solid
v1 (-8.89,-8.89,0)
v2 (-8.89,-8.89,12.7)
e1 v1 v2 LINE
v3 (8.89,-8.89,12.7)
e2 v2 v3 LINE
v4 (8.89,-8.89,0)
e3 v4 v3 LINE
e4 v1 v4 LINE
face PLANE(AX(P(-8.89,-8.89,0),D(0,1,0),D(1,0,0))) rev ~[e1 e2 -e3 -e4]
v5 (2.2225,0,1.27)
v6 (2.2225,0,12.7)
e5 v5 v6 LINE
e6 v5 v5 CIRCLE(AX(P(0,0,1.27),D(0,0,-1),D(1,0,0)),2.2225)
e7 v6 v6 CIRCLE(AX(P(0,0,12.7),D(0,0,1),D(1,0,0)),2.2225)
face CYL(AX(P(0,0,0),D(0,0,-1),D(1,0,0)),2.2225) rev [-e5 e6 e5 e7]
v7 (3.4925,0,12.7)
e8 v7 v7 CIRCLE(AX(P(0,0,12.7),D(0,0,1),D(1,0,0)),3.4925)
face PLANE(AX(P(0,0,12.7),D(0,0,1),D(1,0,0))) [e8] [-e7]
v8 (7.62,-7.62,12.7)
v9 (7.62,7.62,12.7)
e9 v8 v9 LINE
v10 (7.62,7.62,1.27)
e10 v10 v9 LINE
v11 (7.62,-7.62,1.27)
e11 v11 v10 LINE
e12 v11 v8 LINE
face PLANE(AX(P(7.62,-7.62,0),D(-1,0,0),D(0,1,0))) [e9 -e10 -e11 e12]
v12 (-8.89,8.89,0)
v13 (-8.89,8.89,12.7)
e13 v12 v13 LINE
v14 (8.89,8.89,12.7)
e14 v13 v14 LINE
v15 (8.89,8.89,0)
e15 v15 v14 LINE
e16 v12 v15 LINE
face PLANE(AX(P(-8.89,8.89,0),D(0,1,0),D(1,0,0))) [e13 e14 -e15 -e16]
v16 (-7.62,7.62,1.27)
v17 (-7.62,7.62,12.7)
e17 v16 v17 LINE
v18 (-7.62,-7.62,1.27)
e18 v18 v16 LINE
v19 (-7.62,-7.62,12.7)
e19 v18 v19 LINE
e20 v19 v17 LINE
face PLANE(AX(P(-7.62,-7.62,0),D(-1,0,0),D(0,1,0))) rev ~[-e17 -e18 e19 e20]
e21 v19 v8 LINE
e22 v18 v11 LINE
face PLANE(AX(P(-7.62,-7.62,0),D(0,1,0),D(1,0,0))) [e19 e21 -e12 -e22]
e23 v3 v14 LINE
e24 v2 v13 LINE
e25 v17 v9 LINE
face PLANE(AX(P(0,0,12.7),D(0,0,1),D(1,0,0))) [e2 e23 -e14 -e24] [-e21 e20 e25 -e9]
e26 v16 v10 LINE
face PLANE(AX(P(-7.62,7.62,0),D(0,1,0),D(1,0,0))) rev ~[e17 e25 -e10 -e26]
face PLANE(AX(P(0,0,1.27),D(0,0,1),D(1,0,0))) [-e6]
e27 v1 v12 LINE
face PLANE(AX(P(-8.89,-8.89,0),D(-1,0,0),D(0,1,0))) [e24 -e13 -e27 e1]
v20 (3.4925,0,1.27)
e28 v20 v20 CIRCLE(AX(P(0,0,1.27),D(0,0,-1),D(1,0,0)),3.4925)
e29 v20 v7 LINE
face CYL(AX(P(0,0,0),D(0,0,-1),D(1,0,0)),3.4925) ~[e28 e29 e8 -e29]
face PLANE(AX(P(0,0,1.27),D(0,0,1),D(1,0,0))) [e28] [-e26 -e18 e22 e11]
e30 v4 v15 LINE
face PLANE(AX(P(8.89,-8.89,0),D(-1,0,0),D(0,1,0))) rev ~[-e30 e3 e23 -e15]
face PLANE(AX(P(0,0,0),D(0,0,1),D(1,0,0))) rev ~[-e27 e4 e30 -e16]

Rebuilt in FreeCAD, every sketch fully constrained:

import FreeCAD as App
import Part
import Sketcher
from FreeCAD import Vector
Q = App.Units.Quantity


def add_polygon(sketch, points):
    """Adds a closed chain of lines whose ends are joined by coincident constraints."""
    first, n = sketch.GeometryCount, len(points)
    for a, b in zip(points, points[1:] + points[:1]):
        sketch.addGeometry(Part.LineSegment(App.Vector(*a, 0), App.Vector(*b, 0)), False)
    for i in range(n):
        sketch.addConstraint(Sketcher.Constraint("Coincident", first + i, 2, first + (i + 1) % n, 1))

doc = App.newDocument("Part")
body = doc.addObject("PartDesign::Body", "Body")

sketch1 = body.newObject("Sketcher::SketchObject", "Sketch")
sketch1.AttachmentSupport = (doc.getObject("XY_Plane"), [""])
sketch1.MapMode = "FlatFace"
add_polygon(sketch1, [(-7.62, 7.62), (-7.62, -7.62), (7.62, -7.62), (7.62, 7.62)])
sketch1.addConstraint(Sketcher.Constraint("Vertical", 0))
sketch1.addConstraint(Sketcher.Constraint("Horizontal", 1))
sketch1.addConstraint(Sketcher.Constraint("Vertical", 2))
sketch1.addConstraint(Sketcher.Constraint("Horizontal", 3))
sketch1.addConstraint(Sketcher.Constraint("Symmetric", 0, 2, 2, 2, -1, 1))
sketch1.addConstraint(Sketcher.Constraint("Equal", 3, 0))
sketch1.addConstraint(Sketcher.Constraint("DistanceX", 1, 1, 1, 2, Q("0.6 in")))
pad1 = body.newObject("PartDesign::Pad", "Pad")
pad1.Profile = sketch1
pad1.Length = Q("0.05 in")

sketch2 = body.newObject("Sketcher::SketchObject", "Sketch001")
sketch2.AttachmentSupport = (doc.getObject("XY_Plane"), [""])
sketch2.MapMode = "FlatFace"
add_polygon(sketch2, [(-8.89, 8.89), (-8.89, -8.89), (8.89, -8.89), (8.89, 8.89)])
add_polygon(sketch2, [(7.62, -7.62), (-7.62, -7.62), (-7.62, 7.62), (7.62, 7.62)])
sketch2.addConstraint(Sketcher.Constraint("Vertical", 0))
sketch2.addConstraint(Sketcher.Constraint("Horizontal", 1))
sketch2.addConstraint(Sketcher.Constraint("Vertical", 2))
sketch2.addConstraint(Sketcher.Constraint("Horizontal", 3))
sketch2.addConstraint(Sketcher.Constraint("Horizontal", 4))
sketch2.addConstraint(Sketcher.Constraint("Vertical", 5))
sketch2.addConstraint(Sketcher.Constraint("Horizontal", 6))
sketch2.addConstraint(Sketcher.Constraint("Vertical", 7))
sketch2.addConstraint(Sketcher.Constraint("Symmetric", 0, 2, 2, 2, -1, 1))
sketch2.addConstraint(Sketcher.Constraint("Symmetric", 4, 2, 6, 2, -1, 1))
sketch2.addConstraint(Sketcher.Constraint("Equal", 3, 0))
sketch2.addConstraint(Sketcher.Constraint("Equal", 6, 5))
sketch2.addConstraint(Sketcher.Constraint("DistanceX", 1, 1, 1, 2, Q("0.7 in")))
sketch2.addConstraint(Sketcher.Constraint("DistanceX", 4, 2, 4, 1, Q("0.6 in")))
pad2 = body.newObject("PartDesign::Pad", "Pad001")
pad2.Profile = sketch2
pad2.Length = Q("0.5 in")

sketch3 = body.newObject("Sketcher::SketchObject", "Sketch002")
sketch3.AttachmentSupport = (doc.getObject("XY_Plane"), [""])
sketch3.MapMode = "FlatFace"
sketch3.addGeometry(Part.Circle(Vector(0, 0, 0), Vector(0, 0, 1), 3.4925), False)
sketch3.addGeometry(Part.Circle(Vector(0, 0, 0), Vector(0, 0, 1), 2.2225), False)
sketch3.addConstraint(Sketcher.Constraint("Coincident", 0, 3, -1, 1))
sketch3.addConstraint(Sketcher.Constraint("Coincident", 1, 3, -1, 1))
sketch3.addConstraint(Sketcher.Constraint("Diameter", 0, Q("0.275 in")))
sketch3.addConstraint(Sketcher.Constraint("Diameter", 1, Q("0.175 in")))
pad3 = body.newObject("PartDesign::Pad", "Pad002")
pad3.Profile = sketch3
pad3.Length = Q("0.5 in")

doc.recompute()
